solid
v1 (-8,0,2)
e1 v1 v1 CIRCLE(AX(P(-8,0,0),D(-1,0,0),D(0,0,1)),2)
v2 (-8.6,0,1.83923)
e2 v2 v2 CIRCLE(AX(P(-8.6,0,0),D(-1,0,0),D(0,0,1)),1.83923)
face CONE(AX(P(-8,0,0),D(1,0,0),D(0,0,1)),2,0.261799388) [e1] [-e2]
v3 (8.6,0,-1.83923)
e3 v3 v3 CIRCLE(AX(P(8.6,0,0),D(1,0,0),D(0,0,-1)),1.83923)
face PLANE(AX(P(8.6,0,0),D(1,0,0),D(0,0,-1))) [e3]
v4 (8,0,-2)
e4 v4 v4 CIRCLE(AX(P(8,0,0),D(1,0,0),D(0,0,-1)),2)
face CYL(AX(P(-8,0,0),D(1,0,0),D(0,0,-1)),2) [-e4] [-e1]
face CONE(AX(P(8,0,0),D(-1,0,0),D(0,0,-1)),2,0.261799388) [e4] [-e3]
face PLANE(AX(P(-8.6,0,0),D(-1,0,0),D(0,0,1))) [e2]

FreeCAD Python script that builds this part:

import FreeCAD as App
import Part
import Sketcher
from FreeCAD import Vector
Q = App.Units.Quantity

doc = App.newDocument("Part")
body = doc.addObject("PartDesign::Body", "Body")

# Sketch on YZ plane
sketch1 = body.newObject("Sketcher::SketchObject", "Sketch")
sketch1.AttachmentSupport = (doc.getObject("YZ_Plane"), [""])
sketch1.MapMode = "FlatFace"
sketch1.addGeometry(Part.Circle(Vector(0, 0, 0), Vector(0, 0, 1), 2), False)
sketch1.addConstraint([
    Sketcher.Constraint("Coincident", 0, 3, -1, 1),
    Sketcher.Constraint("Diameter", 0, Q("4 mm")),
])
pad1 = body.newObject("PartDesign::Pad", "Pad")
pad1.Profile = sketch1
pad1.Type = "TwoLengths"
pad1.Length = 8
pad1.Length2 = 8

# Sketch on YZ plane
sketch2 = body.newObject("Sketcher::SketchObject", "Sketch001")
sketch2.AttachmentSupport = (doc.getObject("YZ_Plane"), [""])
sketch2.MapMode = "FlatFace"
sketch2.AttachmentOffset = App.Placement(Vector(0, 0, 8), App.Rotation())
sketch2.addGeometry(Part.Circle(Vector(0, 0, 0), Vector(0, 0, 1), 2), False)
sketch2.addConstraint([
    Sketcher.Constraint("Coincident", 0, 3, -1, 1),
    Sketcher.Constraint("Diameter", 0, Q("4 mm")),
])
pad2 = body.newObject("PartDesign::Pad", "Pad001")
pad2.Profile = sketch2
pad2.Length = 0.6
pad2.TaperAngle = -15

# Sketch on YZ plane
sketch3 = body.newObject("Sketcher::SketchObject", "Sketch002")
sketch3.AttachmentSupport = (doc.getObject("YZ_Plane"), [""])
sketch3.MapMode = "FlatFace"
sketch3.AttachmentOffset = App.Placement(Vector(0, 0, -8), App.Rotation())
sketch3.addGeometry(Part.Circle(Vector(0, 0, 0), Vector(0, 0, 1), 2), False)
sketch3.addConstraint([
    Sketcher.Constraint("Coincident", 0, 3, -1, 1),
    Sketcher.Constraint("Diameter", 0, Q("4 mm")),
])
pad3 = body.newObject("PartDesign::Pad", "Pad002")
pad3.Profile = sketch3
pad3.Length = 0.6
pad3.Reversed = True
pad3.TaperAngle = -15

doc.recompute()
